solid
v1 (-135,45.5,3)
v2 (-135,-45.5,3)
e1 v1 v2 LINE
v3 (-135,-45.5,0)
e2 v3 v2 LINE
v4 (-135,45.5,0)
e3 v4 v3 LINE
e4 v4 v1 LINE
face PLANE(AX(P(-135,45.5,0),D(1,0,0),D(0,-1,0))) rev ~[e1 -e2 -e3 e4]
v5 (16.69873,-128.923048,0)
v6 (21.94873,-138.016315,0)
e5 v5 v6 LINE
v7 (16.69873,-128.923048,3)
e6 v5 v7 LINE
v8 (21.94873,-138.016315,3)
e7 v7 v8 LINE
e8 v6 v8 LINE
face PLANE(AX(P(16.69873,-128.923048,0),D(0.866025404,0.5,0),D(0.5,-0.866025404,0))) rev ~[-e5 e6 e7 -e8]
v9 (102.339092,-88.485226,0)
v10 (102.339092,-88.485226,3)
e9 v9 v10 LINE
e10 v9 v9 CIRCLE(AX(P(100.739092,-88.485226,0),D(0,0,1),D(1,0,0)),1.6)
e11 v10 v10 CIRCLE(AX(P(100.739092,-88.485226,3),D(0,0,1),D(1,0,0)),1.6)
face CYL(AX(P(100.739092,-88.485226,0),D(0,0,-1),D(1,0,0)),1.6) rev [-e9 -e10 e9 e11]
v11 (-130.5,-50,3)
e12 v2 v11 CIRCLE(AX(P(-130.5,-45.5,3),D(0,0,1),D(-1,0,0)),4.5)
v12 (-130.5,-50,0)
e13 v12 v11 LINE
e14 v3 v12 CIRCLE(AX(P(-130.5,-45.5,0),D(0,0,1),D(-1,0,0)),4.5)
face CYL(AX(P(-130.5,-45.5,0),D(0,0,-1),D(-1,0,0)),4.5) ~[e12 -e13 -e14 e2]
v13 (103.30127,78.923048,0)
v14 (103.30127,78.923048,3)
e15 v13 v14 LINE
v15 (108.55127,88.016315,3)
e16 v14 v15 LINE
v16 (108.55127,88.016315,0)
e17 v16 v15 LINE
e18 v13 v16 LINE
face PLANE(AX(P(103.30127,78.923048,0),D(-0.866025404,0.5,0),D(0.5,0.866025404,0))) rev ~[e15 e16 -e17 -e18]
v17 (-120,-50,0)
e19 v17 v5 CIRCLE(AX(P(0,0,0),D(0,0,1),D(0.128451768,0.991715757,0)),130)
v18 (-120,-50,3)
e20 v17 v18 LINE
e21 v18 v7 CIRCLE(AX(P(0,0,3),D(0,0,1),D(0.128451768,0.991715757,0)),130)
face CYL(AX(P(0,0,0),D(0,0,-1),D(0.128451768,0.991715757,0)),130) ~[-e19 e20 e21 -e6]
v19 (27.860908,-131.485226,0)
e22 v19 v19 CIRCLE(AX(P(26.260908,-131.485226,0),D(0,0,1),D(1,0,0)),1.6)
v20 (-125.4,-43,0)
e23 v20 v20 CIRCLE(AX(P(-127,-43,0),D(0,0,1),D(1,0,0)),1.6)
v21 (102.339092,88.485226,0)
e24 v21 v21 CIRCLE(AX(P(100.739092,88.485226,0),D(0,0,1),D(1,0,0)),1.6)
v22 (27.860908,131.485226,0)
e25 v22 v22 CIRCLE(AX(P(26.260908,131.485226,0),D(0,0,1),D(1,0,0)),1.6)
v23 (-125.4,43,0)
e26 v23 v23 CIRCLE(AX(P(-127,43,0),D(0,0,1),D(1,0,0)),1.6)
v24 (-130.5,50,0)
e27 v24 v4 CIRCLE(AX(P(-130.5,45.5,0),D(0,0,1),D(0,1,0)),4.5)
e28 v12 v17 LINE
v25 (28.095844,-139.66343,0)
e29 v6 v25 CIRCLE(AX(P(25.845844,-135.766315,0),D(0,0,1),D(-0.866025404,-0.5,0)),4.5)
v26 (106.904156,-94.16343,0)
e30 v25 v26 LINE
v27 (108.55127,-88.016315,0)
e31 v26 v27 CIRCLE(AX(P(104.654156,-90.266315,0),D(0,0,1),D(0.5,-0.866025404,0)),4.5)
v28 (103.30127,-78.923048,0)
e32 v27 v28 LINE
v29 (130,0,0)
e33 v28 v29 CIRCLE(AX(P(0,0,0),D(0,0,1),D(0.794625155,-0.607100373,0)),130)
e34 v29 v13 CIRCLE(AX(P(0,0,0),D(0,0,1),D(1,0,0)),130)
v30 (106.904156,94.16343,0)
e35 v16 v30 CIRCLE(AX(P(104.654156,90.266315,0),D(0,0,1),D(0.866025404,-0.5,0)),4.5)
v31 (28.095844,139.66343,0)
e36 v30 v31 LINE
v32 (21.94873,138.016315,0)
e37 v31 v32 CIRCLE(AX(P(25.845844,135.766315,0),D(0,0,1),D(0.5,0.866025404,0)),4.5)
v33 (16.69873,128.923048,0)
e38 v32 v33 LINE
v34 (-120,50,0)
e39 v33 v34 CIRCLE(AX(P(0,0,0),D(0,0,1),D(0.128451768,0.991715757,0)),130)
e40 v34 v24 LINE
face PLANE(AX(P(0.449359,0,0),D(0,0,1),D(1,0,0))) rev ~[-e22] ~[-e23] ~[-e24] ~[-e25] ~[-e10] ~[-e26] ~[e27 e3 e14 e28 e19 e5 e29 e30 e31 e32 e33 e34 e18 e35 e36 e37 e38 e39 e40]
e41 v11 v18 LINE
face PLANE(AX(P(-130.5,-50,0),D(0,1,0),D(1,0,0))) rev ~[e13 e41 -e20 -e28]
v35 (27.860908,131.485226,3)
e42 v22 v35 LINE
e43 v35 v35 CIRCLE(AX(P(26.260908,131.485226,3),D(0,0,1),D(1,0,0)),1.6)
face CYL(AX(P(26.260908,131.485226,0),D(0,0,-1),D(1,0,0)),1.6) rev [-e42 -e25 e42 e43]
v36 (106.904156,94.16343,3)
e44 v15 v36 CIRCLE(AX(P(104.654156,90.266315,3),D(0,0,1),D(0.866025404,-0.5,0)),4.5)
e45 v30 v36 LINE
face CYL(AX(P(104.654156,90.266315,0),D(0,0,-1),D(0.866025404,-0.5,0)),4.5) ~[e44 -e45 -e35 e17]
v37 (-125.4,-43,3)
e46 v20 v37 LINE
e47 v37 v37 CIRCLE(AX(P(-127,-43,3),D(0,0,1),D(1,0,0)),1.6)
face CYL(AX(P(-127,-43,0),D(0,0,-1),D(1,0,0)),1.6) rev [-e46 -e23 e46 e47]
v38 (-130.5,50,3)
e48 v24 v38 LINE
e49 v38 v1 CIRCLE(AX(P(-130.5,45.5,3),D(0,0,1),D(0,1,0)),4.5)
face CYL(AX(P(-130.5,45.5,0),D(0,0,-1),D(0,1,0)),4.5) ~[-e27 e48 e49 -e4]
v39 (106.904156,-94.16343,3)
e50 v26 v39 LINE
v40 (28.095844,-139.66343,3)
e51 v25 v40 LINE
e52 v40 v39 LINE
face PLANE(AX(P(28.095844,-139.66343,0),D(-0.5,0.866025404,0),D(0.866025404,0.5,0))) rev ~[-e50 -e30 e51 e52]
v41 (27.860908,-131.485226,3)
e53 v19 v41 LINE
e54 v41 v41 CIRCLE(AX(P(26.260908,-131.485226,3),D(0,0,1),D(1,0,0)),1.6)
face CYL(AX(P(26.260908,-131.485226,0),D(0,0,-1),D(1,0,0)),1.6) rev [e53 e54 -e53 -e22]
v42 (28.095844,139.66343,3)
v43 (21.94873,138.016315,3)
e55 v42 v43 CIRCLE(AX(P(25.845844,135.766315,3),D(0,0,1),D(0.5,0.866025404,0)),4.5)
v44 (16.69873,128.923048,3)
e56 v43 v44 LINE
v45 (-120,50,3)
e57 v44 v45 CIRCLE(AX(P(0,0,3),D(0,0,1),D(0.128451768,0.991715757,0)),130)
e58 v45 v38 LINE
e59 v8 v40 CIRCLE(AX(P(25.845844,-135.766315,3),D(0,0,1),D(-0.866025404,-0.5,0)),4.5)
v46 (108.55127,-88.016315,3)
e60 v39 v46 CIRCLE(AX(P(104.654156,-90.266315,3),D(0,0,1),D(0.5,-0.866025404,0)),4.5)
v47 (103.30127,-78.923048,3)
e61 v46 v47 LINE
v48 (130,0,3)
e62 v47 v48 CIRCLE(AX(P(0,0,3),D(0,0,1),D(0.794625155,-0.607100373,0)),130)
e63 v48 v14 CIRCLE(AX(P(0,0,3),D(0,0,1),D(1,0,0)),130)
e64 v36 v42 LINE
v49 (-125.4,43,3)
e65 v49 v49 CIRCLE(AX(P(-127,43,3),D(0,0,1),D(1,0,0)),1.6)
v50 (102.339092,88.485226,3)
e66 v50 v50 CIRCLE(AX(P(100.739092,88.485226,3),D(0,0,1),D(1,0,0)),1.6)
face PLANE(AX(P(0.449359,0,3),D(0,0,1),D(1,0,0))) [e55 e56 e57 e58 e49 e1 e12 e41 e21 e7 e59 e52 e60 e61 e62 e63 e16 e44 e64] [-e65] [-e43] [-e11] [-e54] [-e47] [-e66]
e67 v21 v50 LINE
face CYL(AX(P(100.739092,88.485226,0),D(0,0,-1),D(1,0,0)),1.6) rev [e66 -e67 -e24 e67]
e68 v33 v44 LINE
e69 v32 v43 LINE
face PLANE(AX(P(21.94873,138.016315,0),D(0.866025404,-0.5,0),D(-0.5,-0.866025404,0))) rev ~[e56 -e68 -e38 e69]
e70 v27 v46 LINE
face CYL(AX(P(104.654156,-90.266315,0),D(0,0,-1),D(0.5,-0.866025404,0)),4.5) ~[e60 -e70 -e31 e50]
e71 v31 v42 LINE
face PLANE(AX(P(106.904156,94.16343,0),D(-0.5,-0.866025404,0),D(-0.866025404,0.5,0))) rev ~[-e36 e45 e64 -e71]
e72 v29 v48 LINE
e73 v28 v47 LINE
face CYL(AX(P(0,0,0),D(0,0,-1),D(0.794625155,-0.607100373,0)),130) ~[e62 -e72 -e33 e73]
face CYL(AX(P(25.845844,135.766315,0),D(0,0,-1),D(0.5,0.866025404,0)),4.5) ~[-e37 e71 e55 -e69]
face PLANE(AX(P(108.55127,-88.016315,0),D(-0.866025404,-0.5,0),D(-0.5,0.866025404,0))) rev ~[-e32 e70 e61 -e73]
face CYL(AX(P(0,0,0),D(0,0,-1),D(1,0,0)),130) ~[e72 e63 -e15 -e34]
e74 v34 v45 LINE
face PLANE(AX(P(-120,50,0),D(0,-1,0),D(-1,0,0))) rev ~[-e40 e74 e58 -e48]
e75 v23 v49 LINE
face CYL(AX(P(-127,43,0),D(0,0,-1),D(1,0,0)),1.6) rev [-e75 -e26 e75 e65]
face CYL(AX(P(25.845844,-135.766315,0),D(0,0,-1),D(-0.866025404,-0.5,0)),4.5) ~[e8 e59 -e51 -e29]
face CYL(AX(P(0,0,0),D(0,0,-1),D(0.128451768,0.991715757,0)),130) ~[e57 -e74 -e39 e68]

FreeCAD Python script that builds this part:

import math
import FreeCAD as App
import Part
import Sketcher
Q = App.Units.Quantity

doc = App.newDocument("Part")
body = doc.addObject("PartDesign::Body", "Body")

sketch1 = body.newObject("Sketcher::SketchObject", "Sketch")
sketch1.AttachmentSupport = (doc.getObject("XY_Plane"), [""])
sketch1.MapMode = "FlatFace"
sketch1.addGeometry([
    Part.ArcOfCircle(Part.Circle(App.Vector(0, 0, 0), App.Vector(0, 0, 1), 130), math.radians(-37.380135), math.radians(0)),
    Part.ArcOfCircle(Part.Circle(App.Vector(0, 0, 0), App.Vector(0, 0, 1), 130), math.radians(0), math.radians(37.380135)),
    Part.LineSegment(App.Vector(103.30127, 78.923048, 0), App.Vector(108.55127, 88.016315, 0)),
    Part.ArcOfCircle(Part.Circle(App.Vector(104.654156, 90.266315, 0), App.Vector(0, 0, 1), 4.5), math.radians(-30), math.radians(60)),
    Part.LineSegment(App.Vector(106.904156, 94.16343, 0), App.Vector(28.095844, 139.66343, 0)),
    Part.ArcOfCircle(Part.Circle(App.Vector(25.845844, 135.766315, 0), App.Vector(0, 0, 1), 4.5), math.radians(60), math.radians(150)),
    Part.LineSegment(App.Vector(21.94873, 138.016315, 0), App.Vector(16.69873, 128.923048, 0)),
    Part.ArcOfCircle(Part.Circle(App.Vector(0, 0, 0), App.Vector(0, 0, 1), 130), math.radians(82.619865), math.radians(157.380135)),
    Part.LineSegment(App.Vector(-120, 50, 0), App.Vector(-130.5, 50, 0)),
    Part.ArcOfCircle(Part.Circle(App.Vector(-130.5, 45.5, 0), App.Vector(0, 0, 1), 4.5), math.radians(90), math.radians(180)),
    Part.LineSegment(App.Vector(-135, 45.5, 0), App.Vector(-135, -45.5, 0)),
    Part.ArcOfCircle(Part.Circle(App.Vector(-130.5, -45.5, 0), App.Vector(0, 0, 1), 4.5), math.radians(180), math.radians(270)),
    Part.LineSegment(App.Vector(-130.5, -50, 0), App.Vector(-120, -50, 0)),
    Part.ArcOfCircle(Part.Circle(App.Vector(0, 0, 0), App.Vector(0, 0, 1), 130), math.radians(-157.380135), math.radians(-82.619865)),
    Part.LineSegment(App.Vector(16.69873, -128.923048, 0), App.Vector(21.94873, -138.016315, 0)),
    Part.ArcOfCircle(Part.Circle(App.Vector(25.845844, -135.766315, 0), App.Vector(0, 0, 1), 4.5), math.radians(-150), math.radians(-60)),
    Part.LineSegment(App.Vector(28.095844, -139.66343, 0), App.Vector(106.904156, -94.16343, 0)),
    Part.ArcOfCircle(Part.Circle(App.Vector(104.654156, -90.266315, 0), App.Vector(0, 0, 1), 4.5), math.radians(-60), math.radians(30)),
    Part.LineSegment(App.Vector(108.55127, -88.016315, 0), App.Vector(103.30127, -78.923048, 0)),
    Part.Circle(App.Vector(-127, -43, 0), App.Vector(0, 0, 1), 1.6),
    Part.Circle(App.Vector(26.260908, -131.485226, 0), App.Vector(0, 0, 1), 1.6),
    Part.Circle(App.Vector(100.739092, -88.485226, 0), App.Vector(0, 0, 1), 1.6),
    Part.Circle(App.Vector(-127, 43, 0), App.Vector(0, 0, 1), 1.6),
    Part.Circle(App.Vector(26.260908, 131.485226, 0), App.Vector(0, 0, 1), 1.6),
    Part.Circle(App.Vector(100.739092, 88.485226, 0), App.Vector(0, 0, 1), 1.6),
], False)
sketch1.addConstraint([
    Sketcher.Constraint("Tangent", 0, 2, 1, 1),
    Sketcher.Constraint("Coincident", 1, 2, 2, 1),
    Sketcher.Constraint("Tangent", 2, 2, 3, 1),
    Sketcher.Constraint("Tangent", 3, 2, 4, 1),
    Sketcher.Constraint("Tangent", 4, 2, 5, 1),
    Sketcher.Constraint("Tangent", 5, 2, 6, 1),
    Sketcher.Constraint("Coincident", 6, 2, 7, 1),
    Sketcher.Constraint("Coincident", 7, 2, 8, 1),
    Sketcher.Constraint("Tangent", 8, 2, 9, 1),
    Sketcher.Constraint("Tangent", 9, 2, 10, 1),
    Sketcher.Constraint("Tangent", 10, 2, 11, 1),
    Sketcher.Constraint("Tangent", 11, 2, 12, 1),
    Sketcher.Constraint("Coincident", 12, 2, 13, 1),
    Sketcher.Constraint("Coincident", 13, 2, 14, 1),
    Sketcher.Constraint("Tangent", 14, 2, 15, 1),
    Sketcher.Constraint("Tangent", 15, 2, 16, 1),
    Sketcher.Constraint("Tangent", 16, 2, 17, 1),
    Sketcher.Constraint("Tangent", 17, 2, 18, 1),
    Sketcher.Constraint("Coincident", 18, 2, 0, 1),
    Sketcher.Constraint("Horizontal", 8),
    Sketcher.Constraint("Vertical", 10),
    Sketcher.Constraint("Horizontal", 12),
    Sketcher.Constraint("Coincident", 0, 3, -1, 1),
    Sketcher.Constraint("Coincident", 7, 3, -1, 1),
    Sketcher.Constraint("Coincident", 13, 3, -1, 1),
    Sketcher.Constraint("Equal", 0, 1),
    Sketcher.Constraint("Equal", 3, 5),
    Sketcher.Constraint("Equal", 1, 7),
    Sketcher.Constraint("Equal", 5, 9),
    Sketcher.Constraint("Equal", 9, 11),
    Sketcher.Constraint("Equal", 7, 13),
    Sketcher.Constraint("Equal", 11, 15),
    Sketcher.Constraint("Equal", 15, 17),
    Sketcher.Constraint("Equal", 19, 20),
    Sketcher.Constraint("Equal", 20, 21),
    Sketcher.Constraint("Equal", 21, 22),
    Sketcher.Constraint("Equal", 22, 23),
    Sketcher.Constraint("Equal", 23, 24),
    Sketcher.Constraint("Symmetric", 5, 3, 15, 3, -1),
    Sketcher.Constraint("Symmetric", 3, 3, 17, 3, -1),
    Sketcher.Constraint("Symmetric", 19, 3, 22, 3, -1),
    Sketcher.Constraint("Symmetric", 20, 3, 23, 3, -1),
    Sketcher.Constraint("Symmetric", 21, 3, 24, 3, -1),
    Sketcher.Constraint("PointOnObject", 0, 2, -1),
    Sketcher.Constraint("Perpendicular", 2, 4),
    Sketcher.Constraint("Perpendicular", 4, 6),
    Sketcher.Constraint("Perpendicular", 14, 16),
    Sketcher.Constraint("Perpendicular", 16, 18),
    Sketcher.Constraint("Vertical", 7, 2, 12, 2),
    Sketcher.Constraint("Equal", 2, 6),
    Sketcher.Constraint("Radius", 0, Q("130 mm")),
    Sketcher.Constraint("Diameter", 19, Q("3.2 mm")),
    Sketcher.Constraint("Radius", 3, Q("4.5 mm")),
    Sketcher.Constraint("DistanceY", 10, 2, 10, 1, Q("91 mm")),
    Sketcher.Constraint("Angle", 2, Q("60 deg")),
    Sketcher.Constraint("Distance", 4, Q("91 mm")),
    Sketcher.Constraint("DistanceX", 8, 2, 8, 1, Q("10.5 mm")),
    Sketcher.Constraint("DistanceX", 19, 3, -1, 1, Q("127 mm")),
    Sketcher.Constraint("DistanceY", 19, 3, -1, 1, Q("43 mm")),
    Sketcher.Constraint("DistanceY", 20, 3, 21, 3, Q("43 mm")),
    Sketcher.Constraint("Distance", 2, Q("10.5 mm")),
    Sketcher.Constraint("DistanceY", 15, 3, 20, 3, Q("4.281089 mm")),
    Sketcher.Constraint("DistanceX", 20, 3, 17, 3, Q("78.393248 mm")),
    Sketcher.Constraint("DistanceX", 15, 3, 21, 3, Q("74.893248 mm")),
])
pad1 = body.newObject("PartDesign::Pad", "Pad")
pad1.Profile = sketch1
pad1.Length = 3

doc.recompute()
